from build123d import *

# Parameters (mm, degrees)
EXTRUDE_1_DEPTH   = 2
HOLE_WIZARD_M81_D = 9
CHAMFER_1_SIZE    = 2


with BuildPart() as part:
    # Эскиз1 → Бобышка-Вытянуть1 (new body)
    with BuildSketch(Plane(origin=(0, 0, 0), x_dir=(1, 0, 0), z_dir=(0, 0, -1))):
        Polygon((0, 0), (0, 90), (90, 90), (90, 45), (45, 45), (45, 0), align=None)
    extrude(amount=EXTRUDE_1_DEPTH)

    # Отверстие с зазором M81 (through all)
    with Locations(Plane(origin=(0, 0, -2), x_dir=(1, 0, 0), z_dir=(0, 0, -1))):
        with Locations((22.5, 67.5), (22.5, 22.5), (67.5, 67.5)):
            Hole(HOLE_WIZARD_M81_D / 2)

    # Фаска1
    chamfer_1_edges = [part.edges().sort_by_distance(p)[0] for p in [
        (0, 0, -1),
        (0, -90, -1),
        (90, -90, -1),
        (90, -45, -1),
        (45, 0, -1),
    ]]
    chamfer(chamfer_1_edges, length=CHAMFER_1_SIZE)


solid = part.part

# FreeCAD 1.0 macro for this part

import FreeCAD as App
import Part
import Sketcher

V = App.Vector


def edges_at(feature, points):
    """Names of the edges that pass closest to the given points."""
    edges = feature.Shape.Edges
    near = lambda p: min(range(len(edges)), key=lambda i: edges[i].distToShape(Part.Vertex(*p))[0])
    return sorted({f"Edge{near(p) + 1}" for p in points})


def add_polygon(sketch, points):
    """Adds a closed chain of lines whose ends are joined by coincident constraints."""
    first, n = sketch.GeometryCount, len(points)
    for a, b in zip(points, points[1:] + points[:1]):
        sketch.addGeometry(Part.LineSegment(App.Vector(*a, 0), App.Vector(*b, 0)), False)
    for i in range(n):
        sketch.addConstraint(Sketcher.Constraint("Coincident", first + i, 2, first + (i + 1) % n, 1))

doc = App.newDocument("Part")
body = doc.addObject("PartDesign::Body", "Body")

# Sketch on XY plane
sketch1 = body.newObject("Sketcher::SketchObject", "Sketch")
sketch1.AttachmentSupport = (doc.getObject("XY_Plane"), [""])
sketch1.MapMode = "FlatFace"
add_polygon(sketch1, [(0, -90), (0, 0), (45, 0), (45, -45), (90, -45), (90, -90)])  # lines 0-5
sketch1.addConstraint([
    Sketcher.Constraint("Vertical", 0),
    Sketcher.Constraint("Horizontal", 1),
    Sketcher.Constraint("Vertical", 2),
    Sketcher.Constraint("Horizontal", 3),
    Sketcher.Constraint("Vertical", 4),
    Sketcher.Constraint("Horizontal", 5),
    Sketcher.Constraint("Coincident", 0, 2, -1, 1),
    Sketcher.Constraint("Equal", 1, 3),
    Sketcher.Constraint("Equal", 5, 0),
    Sketcher.Constraint("Equal", 3, 2),
    Sketcher.Constraint("DistanceX", 1, 1, 1, 2, 45.0),
])
pad1 = body.newObject("PartDesign::Pad", "Pad")
pad1.Profile = sketch1
pad1.Length = 2
pad1.Reversed = True

# Sketch on XY plane
sketch2 = body.newObject("Sketcher::SketchObject", "Sketch001")
sketch2.AttachmentSupport = (doc.getObject("XY_Plane"), [""])
sketch2.MapMode = "FlatFace"
sketch2.AttachmentOffset = App.Placement(V(0, 0, -2), App.Rotation())
sketch2.addGeometry([
    Part.Circle(V(22.5, -67.5, 0), V(0, 0, 1), 4.5),
    Part.Circle(V(22.5, -22.5, 0), V(0, 0, 1), 4.5),
    Part.Circle(V(67.5, -67.5, 0), V(0, 0, 1), 4.5),
], False)
sketch2.addConstraint([
    Sketcher.Constraint("Equal", 0, 1),
    Sketcher.Constraint("Equal", 1, 2),
    Sketcher.Constraint("Horizontal", 0, 3, 2, 3),
    Sketcher.Constraint("Vertical", 0, 3, 1, 3),
    Sketcher.Constraint("Diameter", 0, 9.0),
    Sketcher.Constraint("DistanceY", 0, 3, 1, 3, 45.0),
    Sketcher.Constraint("DistanceX", 0, 3, 2, 3, 45.0),
    Sketcher.Constraint("DistanceX", -1, 1, 0, 3, 22.5),
    Sketcher.Constraint("DistanceY", 0, 3, -1, 1, 67.5),
])
doc.recompute()
hole = body.newObject("PartDesign::Hole", "Hole")
hole.Profile = sketch2
hole.ThreadType = "None"
hole.Diameter = 9
hole.DepthType = "ThroughAll"
hole.Reversed = True
doc.recompute()

chamfer = body.newObject("PartDesign::Chamfer", "Chamfer")
chamfer.Base = (hole, edges_at(hole, [
    (0, 0, -1),
    (0, -90, -1),
    (90, -90, -1),
    (90, -45, -1),
    (45, 0, -1),
]))
chamfer.Size = 2

doc.recompute()
